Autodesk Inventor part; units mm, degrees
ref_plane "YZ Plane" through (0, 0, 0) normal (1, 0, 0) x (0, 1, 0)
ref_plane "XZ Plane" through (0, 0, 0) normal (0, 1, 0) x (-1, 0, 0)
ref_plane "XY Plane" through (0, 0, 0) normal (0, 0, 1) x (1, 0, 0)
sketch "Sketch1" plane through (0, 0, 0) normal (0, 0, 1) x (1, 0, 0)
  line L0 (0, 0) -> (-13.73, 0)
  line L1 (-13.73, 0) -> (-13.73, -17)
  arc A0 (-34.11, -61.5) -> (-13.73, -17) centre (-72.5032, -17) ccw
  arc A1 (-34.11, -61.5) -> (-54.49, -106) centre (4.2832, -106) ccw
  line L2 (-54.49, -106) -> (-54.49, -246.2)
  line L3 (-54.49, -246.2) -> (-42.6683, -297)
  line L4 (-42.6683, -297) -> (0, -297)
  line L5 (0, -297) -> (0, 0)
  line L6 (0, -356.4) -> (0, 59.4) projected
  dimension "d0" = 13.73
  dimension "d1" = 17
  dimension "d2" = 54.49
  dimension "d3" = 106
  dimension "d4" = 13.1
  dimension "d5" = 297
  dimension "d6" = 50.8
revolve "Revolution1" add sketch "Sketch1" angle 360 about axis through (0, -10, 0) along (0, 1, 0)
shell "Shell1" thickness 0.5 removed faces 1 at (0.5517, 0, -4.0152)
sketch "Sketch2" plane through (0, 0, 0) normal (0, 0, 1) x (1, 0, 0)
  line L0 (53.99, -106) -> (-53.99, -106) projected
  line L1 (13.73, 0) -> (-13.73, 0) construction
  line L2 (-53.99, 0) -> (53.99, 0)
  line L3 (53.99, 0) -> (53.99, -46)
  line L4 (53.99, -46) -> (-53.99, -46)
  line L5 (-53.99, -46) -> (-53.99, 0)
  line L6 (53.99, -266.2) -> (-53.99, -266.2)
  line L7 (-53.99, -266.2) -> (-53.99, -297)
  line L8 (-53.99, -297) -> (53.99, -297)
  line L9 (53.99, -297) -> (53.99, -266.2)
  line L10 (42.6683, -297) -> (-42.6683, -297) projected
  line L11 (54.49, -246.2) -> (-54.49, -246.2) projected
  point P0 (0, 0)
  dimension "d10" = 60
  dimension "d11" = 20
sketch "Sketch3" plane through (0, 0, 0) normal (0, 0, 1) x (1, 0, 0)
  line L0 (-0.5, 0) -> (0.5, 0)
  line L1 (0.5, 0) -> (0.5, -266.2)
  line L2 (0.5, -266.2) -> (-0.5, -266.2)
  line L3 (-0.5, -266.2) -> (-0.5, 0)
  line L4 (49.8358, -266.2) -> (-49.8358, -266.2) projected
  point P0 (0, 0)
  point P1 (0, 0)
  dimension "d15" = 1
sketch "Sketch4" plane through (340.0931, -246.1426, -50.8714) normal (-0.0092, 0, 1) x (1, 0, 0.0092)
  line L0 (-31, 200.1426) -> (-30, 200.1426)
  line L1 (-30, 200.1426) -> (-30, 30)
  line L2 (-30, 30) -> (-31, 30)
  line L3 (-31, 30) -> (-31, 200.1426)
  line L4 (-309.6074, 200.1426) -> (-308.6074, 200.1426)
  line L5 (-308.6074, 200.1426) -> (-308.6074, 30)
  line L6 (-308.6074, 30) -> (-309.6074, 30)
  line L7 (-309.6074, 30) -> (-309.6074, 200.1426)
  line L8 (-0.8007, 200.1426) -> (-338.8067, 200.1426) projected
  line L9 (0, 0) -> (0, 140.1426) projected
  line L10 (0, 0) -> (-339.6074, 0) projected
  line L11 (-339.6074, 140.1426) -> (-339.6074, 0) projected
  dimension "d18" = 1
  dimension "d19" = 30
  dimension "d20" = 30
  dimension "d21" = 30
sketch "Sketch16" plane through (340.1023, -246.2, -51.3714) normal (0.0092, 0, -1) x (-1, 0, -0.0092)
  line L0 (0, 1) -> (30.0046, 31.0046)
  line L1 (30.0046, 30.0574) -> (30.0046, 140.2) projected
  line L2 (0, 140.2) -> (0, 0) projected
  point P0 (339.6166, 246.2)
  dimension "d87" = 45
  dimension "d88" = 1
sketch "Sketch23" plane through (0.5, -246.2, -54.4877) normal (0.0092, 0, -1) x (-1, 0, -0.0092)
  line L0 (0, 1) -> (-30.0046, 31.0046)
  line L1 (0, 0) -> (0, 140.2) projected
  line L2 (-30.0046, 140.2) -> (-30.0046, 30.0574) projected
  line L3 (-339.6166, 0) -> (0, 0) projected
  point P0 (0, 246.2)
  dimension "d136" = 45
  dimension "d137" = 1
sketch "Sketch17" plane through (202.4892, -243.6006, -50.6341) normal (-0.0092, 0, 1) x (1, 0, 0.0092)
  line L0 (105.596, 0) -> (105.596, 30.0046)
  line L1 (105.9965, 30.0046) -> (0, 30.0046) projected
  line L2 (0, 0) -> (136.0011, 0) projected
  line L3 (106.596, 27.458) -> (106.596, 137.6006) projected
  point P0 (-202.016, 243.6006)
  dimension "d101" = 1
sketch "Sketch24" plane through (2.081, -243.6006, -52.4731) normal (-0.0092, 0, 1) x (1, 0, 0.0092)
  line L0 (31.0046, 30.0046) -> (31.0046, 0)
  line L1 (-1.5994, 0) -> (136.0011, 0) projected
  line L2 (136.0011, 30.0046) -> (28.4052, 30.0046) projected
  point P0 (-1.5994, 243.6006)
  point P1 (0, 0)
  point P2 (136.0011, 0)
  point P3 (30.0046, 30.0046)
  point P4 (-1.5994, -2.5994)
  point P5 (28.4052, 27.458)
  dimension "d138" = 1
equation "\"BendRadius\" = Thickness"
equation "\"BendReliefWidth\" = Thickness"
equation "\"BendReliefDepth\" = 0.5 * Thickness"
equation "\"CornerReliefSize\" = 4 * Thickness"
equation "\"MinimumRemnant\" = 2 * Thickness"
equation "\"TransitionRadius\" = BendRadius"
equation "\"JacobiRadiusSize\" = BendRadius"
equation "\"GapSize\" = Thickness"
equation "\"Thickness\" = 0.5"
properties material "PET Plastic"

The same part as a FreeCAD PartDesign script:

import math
import FreeCAD as App
import Part
import Sketcher

V = App.Vector
Q = App.Units.Quantity


def faces_at(feature, points):
    """Names of the faces that lie closest to the given points."""
    faces = feature.Shape.Faces
    near = lambda p: min(range(len(faces)), key=lambda i: faces[i].distToShape(Part.Vertex(*p))[0])
    return sorted({f"Face{near(p) + 1}" for p in points})

doc = App.newDocument("Part")
body = doc.addObject("PartDesign::Body", "Body")

# Sketch on XY plane
sketch1 = body.newObject("Sketcher::SketchObject", "Sketch")
sketch1.AttachmentSupport = (doc.getObject("XY_Plane"), [""])
sketch1.MapMode = "FlatFace"
sketch1.addGeometry(Part.LineSegment(V(0, -297, 0), V(0, 0, 0)), False)
sketch1.addGeometry(Part.LineSegment(V(0, 0, 0), V(-13.73, 0, 0)), False)
sketch1.addGeometry(Part.LineSegment(V(-13.73, 0, 0), V(-13.73, -17, 0)), False)
sketch1.addGeometry(Part.ArcOfCircle(Part.Circle(V(-72.5032, -17, 0), V(0, 0, 1), 58.77319), math.radians(-49.213409), math.radians(0)), False)
sketch1.addGeometry(Part.ArcOfCircle(Part.Circle(V(4.2832, -106, 0), V(0, 0, 1), 58.77319), math.radians(130.786591), math.radians(180)), False)
sketch1.addGeometry(Part.LineSegment(V(-54.49, -106, 0), V(-54.49, -246.2, 0)), False)
sketch1.addGeometry(Part.LineSegment(V(-54.49, -246.2, 0), V(-42.6683, -297, 0)), False)
sketch1.addGeometry(Part.LineSegment(V(-42.6683, -297, 0), V(0, -297, 0)), False)
sketch1.addConstraint(Sketcher.Constraint("Coincident", 0, 2, 1, 1))
sketch1.addConstraint(Sketcher.Constraint("Coincident", 1, 2, 2, 1))
sketch1.addConstraint(Sketcher.Constraint("Tangent", 2, 2, 3, 2))
sketch1.addConstraint(Sketcher.Constraint("Tangent", 3, 1, 4, 1))
sketch1.addConstraint(Sketcher.Constraint("Tangent", 4, 2, 5, 1))
sketch1.addConstraint(Sketcher.Constraint("Coincident", 5, 2, 6, 1))
sketch1.addConstraint(Sketcher.Constraint("Coincident", 6, 2, 7, 1))
sketch1.addConstraint(Sketcher.Constraint("Coincident", 7, 2, 0, 1))
sketch1.addConstraint(Sketcher.Constraint("Vertical", 0))
sketch1.addConstraint(Sketcher.Constraint("Horizontal", 1))
sketch1.addConstraint(Sketcher.Constraint("Vertical", 2))
sketch1.addConstraint(Sketcher.Constraint("Vertical", 5))
sketch1.addConstraint(Sketcher.Constraint("Horizontal", 7))
sketch1.addConstraint(Sketcher.Constraint("Coincident", 0, 2, -1, 1))
sketch1.addConstraint(Sketcher.Constraint("Equal", 3, 4))
sketch1.addConstraint(Sketcher.Constraint("DistanceY", 0, 1, 0, 2, Q("297 mm")))
sketch1.addConstraint(Sketcher.Constraint("DistanceY", 2, 2, 2, 1, Q("17 mm")))
sketch1.addConstraint(Sketcher.Constraint("DistanceY", 4, 3, -1, 1, Q("106 mm")))
sketch1.addConstraint(Sketcher.Constraint("DistanceX", 1, 2, 1, 1, Q("13.73 mm")))
sketch1.addConstraint(Sketcher.Constraint("DistanceY", 6, 2, 5, 2, Q("50.8 mm")))
sketch1.addConstraint(Sketcher.Constraint("DistanceX", 4, 2, -1, 1, Q("54.49 mm")))
sketch1.addConstraint(Sketcher.Constraint("Angle", 6, Q("-76.8998 deg")))
revolution = body.newObject("PartDesign::Revolution", "Revolution")
revolution.Profile = sketch1
revolution.ReferenceAxis = (sketch1, ["V_Axis"])
revolution.Angle = 360
doc.recompute()

thickness = body.newObject("PartDesign::Thickness", "Thickness")
thickness.Base = (revolution, faces_at(revolution, [(0.552, 0, -4.015)]))
thickness.Value = 0.5
thickness.Reversed = True
thickness.Join = "Intersection"

doc.recompute()
